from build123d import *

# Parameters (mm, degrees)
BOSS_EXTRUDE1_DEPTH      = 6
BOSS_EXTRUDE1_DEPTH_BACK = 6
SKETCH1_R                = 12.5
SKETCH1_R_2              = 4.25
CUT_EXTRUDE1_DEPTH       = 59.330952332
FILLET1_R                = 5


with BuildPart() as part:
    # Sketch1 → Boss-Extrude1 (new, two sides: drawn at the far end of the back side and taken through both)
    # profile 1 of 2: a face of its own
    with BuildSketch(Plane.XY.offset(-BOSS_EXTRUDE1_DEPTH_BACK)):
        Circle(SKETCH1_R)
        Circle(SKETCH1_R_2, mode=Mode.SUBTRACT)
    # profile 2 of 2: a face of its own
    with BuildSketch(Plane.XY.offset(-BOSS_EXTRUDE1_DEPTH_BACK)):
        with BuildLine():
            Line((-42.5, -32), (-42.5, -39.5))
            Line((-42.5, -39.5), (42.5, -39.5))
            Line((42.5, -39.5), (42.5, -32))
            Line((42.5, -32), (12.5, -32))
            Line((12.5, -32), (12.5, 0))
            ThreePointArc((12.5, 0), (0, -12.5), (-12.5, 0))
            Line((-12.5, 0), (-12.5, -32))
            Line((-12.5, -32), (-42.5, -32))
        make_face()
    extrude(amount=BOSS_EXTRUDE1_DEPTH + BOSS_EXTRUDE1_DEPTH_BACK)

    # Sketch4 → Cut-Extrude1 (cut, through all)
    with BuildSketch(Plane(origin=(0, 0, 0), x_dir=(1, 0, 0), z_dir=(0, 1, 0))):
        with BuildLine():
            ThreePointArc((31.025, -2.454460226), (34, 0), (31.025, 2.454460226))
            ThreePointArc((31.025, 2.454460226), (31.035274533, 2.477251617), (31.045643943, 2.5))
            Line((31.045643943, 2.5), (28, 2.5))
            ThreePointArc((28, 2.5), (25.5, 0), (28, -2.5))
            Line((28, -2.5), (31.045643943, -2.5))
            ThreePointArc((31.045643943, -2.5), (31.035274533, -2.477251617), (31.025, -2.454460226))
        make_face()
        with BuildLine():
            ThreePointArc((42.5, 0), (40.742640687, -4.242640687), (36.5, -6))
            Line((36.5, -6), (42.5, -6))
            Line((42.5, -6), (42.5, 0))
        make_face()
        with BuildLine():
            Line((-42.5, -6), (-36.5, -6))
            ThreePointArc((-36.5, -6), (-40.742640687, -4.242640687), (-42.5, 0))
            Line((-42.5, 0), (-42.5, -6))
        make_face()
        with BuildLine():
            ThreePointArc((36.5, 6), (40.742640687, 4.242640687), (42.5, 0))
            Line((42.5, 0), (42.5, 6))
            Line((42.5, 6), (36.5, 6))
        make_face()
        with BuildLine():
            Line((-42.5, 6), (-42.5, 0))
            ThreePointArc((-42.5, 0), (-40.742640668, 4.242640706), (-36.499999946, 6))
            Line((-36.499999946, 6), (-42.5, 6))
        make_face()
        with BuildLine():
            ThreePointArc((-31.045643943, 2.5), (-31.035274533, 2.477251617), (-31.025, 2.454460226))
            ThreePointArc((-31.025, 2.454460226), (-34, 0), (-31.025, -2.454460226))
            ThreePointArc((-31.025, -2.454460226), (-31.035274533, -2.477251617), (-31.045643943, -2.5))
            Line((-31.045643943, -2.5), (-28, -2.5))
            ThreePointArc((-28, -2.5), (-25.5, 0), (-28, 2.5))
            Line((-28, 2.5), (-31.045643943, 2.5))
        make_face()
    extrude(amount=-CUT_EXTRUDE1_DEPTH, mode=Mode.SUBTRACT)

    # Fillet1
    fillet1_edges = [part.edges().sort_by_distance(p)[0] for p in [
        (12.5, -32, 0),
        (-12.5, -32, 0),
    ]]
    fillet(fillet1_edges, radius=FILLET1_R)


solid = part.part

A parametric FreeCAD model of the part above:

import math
import FreeCAD as App
import Part
import Sketcher

V = App.Vector


def edges_at(feature, points):
    """Names of the edges that pass closest to the given points."""
    edges = feature.Shape.Edges
    near = lambda p: min(range(len(edges)), key=lambda i: edges[i].distToShape(Part.Vertex(*p))[0])
    return sorted({f"Edge{near(p) + 1}" for p in points})

doc = App.newDocument("Part")
body = doc.addObject("PartDesign::Body", "Body")

# Sketch on XY plane
sketch1 = doc.addObject("Sketcher::SketchObject", "Sketch")
body.addObject(sketch1)
sketch1.AttachmentSupport = (doc.XY_Plane, [""])
sketch1.MapMode = "FlatFace"
sketch1.addGeometry([
    Part.ArcOfCircle(Part.Circle(V(0, 0, 0), V(0, 0, 1), 12.5), math.radians(0), math.radians(180)),  # 0
    Part.LineSegment(V(-12.5, 0, 0), V(-12.5, -32, 0)),  # 1
    Part.LineSegment(V(-12.5, -32, 0), V(-42.5, -32, 0)),  # 2
    Part.LineSegment(V(-42.5, -32, 0), V(-42.5, -39.5, 0)),  # 3
    Part.LineSegment(V(-42.5, -39.5, 0), V(42.5, -39.5, 0)),  # 4
    Part.LineSegment(V(42.5, -39.5, 0), V(42.5, -32, 0)),  # 5
    Part.LineSegment(V(42.5, -32, 0), V(12.5, -32, 0)),  # 6
    Part.LineSegment(V(12.5, -32, 0), V(12.5, 0, 0)),  # 7
    Part.Circle(V(0, 0, 0), V(0, 0, 1), 4.2),  # 8
], False)
sketch1.addConstraint([
    Sketcher.Constraint("Tangent", 0, 2, 1, 1),
    Sketcher.Constraint("Coincident", 1, 2, 2, 1),
    Sketcher.Constraint("Coincident", 2, 2, 3, 1),
    Sketcher.Constraint("Coincident", 3, 2, 4, 1),
    Sketcher.Constraint("Coincident", 4, 2, 5, 1),
    Sketcher.Constraint("Coincident", 5, 2, 6, 1),
    Sketcher.Constraint("Coincident", 6, 2, 7, 1),
    Sketcher.Constraint("Tangent", 7, 2, 0, 1),
    Sketcher.Constraint("Vertical", 1),
    Sketcher.Constraint("Horizontal", 2),
    Sketcher.Constraint("Vertical", 3),
    Sketcher.Constraint("Horizontal", 4),
    Sketcher.Constraint("Vertical", 5),
    Sketcher.Constraint("Horizontal", 6),
    Sketcher.Constraint("Vertical", 7),
    Sketcher.Constraint("Coincident", 0, 3, -1, 1),
    Sketcher.Constraint("Coincident", 8, 3, -1, 1),
    Sketcher.Constraint("Symmetric", 2, 2, 5, 2, -2),
    Sketcher.Constraint("Diameter", 8, 8.5),
    Sketcher.Constraint("Radius", 0, 12.5),
    Sketcher.Constraint("DistanceX", 2, 2, 2, 1, 30.0),
    Sketcher.Constraint("DistanceY", 1, 2, 1, 1, 32.0),
    Sketcher.Constraint("DistanceY", 3, 2, 3, 1, 7.5),
])
pad1 = doc.addObject("PartDesign::Pad", "Pad")
body.addObject(pad1)
pad1.Profile = sketch1
pad1.Type = "TwoLengths"
pad1.Length = 6
pad1.Length2 = 6

# Sketch on XZ plane
sketch2 = doc.addObject("Sketcher::SketchObject", "Sketch001")
body.addObject(sketch2)
sketch2.AttachmentSupport = (doc.XZ_Plane, [""])
sketch2.MapMode = "FlatFace"
sketch2.addGeometry([
    Part.ArcOfCircle(Part.Circle(V(31.5, 0, 0), V(0, 0, 1), 2.5), math.radians(-101), math.radians(101)),  # 0
    Part.ArcOfCircle(Part.Circle(V(36.5, 0, 0), V(0, 0, 1), 6), math.radians(-155.85), math.radians(-155.38)),  # 1
    Part.LineSegment(V(31.05, -2.5, 0), V(28, -2.5, 0)),  # 2
    Part.ArcOfCircle(Part.Circle(V(28, 0, 0), V(0, 0, 1), 2.5), math.radians(90), math.radians(270)),  # 3
    Part.LineSegment(V(28, 2.5, 0), V(31.05, 2.5, 0)),  # 4
    Part.ArcOfCircle(Part.Circle(V(36.5, 0, 0), V(0, 0, 1), 6), math.radians(155.38), math.radians(155.85)),  # 5
    Part.ArcOfCircle(Part.Circle(V(36.5, 0, 0), V(0, 0, 1), 6), math.radians(0), math.radians(90)),  # 6
    Part.LineSegment(V(36.5, 6, 0), V(42.5, 6, 0)),  # 7
    Part.LineSegment(V(42.5, 6, 0), V(42.5, 0, 0)),  # 8
    Part.LineSegment(V(-42.5, 6, 0), V(-36.5, 6, 0)),  # 9
    Part.ArcOfCircle(Part.Circle(V(-36.5, 0, 0), V(0, 0, 1), 6), math.radians(90), math.radians(180)),  # 10
    Part.LineSegment(V(-42.5, 0, 0), V(-42.5, 6, 0)),  # 11
    Part.ArcOfCircle(Part.Circle(V(36.5, 0, 0), V(0, 0, 1), 6), math.radians(-90), math.radians(0)),  # 12
    Part.LineSegment(V(42.5, 0, 0), V(42.5, -6, 0)),  # 13
    Part.LineSegment(V(42.5, -6, 0), V(36.5, -6, 0)),  # 14
    Part.LineSegment(V(-42.5, -6, 0), V(-42.5, 0, 0)),  # 15
    Part.ArcOfCircle(Part.Circle(V(-36.5, 0, 0), V(0, 0, 1), 6), math.radians(180), math.radians(270)),  # 16
    Part.LineSegment(V(-36.5, -6, 0), V(-42.5, -6, 0)),  # 17
    Part.ArcOfCircle(Part.Circle(V(-36.5, 0, 0), V(0, 0, 1), 6), math.radians(-24.62), math.radians(-24.15)),  # 18
    Part.ArcOfCircle(Part.Circle(V(-31.5, 0, 0), V(0, 0, 1), 2.5), math.radians(79), math.radians(281)),  # 19
    Part.ArcOfCircle(Part.Circle(V(-36.5, 0, 0), V(0, 0, 1), 6), math.radians(24.15), math.radians(24.62)),  # 20
    Part.LineSegment(V(-31.05, 2.5, 0), V(-28, 2.5, 0)),  # 21
    Part.ArcOfCircle(Part.Circle(V(-28, 0, 0), V(0, 0, 1), 2.5), math.radians(-90), math.radians(90)),  # 22
    Part.LineSegment(V(-28, -2.5, 0), V(-31.05, -2.5, 0)),  # 23
], False)
sketch2.addConstraint([
    Sketcher.Constraint("Coincident", 0, 1, 1, 1),
    Sketcher.Constraint("Coincident", 1, 2, 2, 1),
    Sketcher.Constraint("Tangent", 2, 2, 3, 2),
    Sketcher.Constraint("Tangent", 3, 1, 4, 1),
    Sketcher.Constraint("Coincident", 4, 2, 5, 1),
    Sketcher.Constraint("Coincident", 5, 2, 0, 2),
    Sketcher.Constraint("Tangent", 6, 2, 7, 1),
    Sketcher.Constraint("Coincident", 7, 2, 8, 1),
    Sketcher.Constraint("Tangent", 8, 2, 6, 1),
    Sketcher.Constraint("Tangent", 9, 2, 10, 1),
    Sketcher.Constraint("Tangent", 10, 2, 11, 1),
    Sketcher.Constraint("Coincident", 11, 2, 9, 1),
    Sketcher.Constraint("Tangent", 12, 2, 13, 1),
    Sketcher.Constraint("Coincident", 13, 2, 14, 1),
    Sketcher.Constraint("Tangent", 14, 2, 12, 1),
    Sketcher.Constraint("Tangent", 15, 2, 16, 1),
    Sketcher.Constraint("Tangent", 16, 2, 17, 1),
    Sketcher.Constraint("Coincident", 17, 2, 15, 1),
    Sketcher.Constraint("Coincident", 18, 2, 19, 2),
    Sketcher.Constraint("Coincident", 19, 1, 20, 1),
    Sketcher.Constraint("Coincident", 20, 2, 21, 1),
    Sketcher.Constraint("Tangent", 21, 2, 22, 2),
    Sketcher.Constraint("Tangent", 22, 1, 23, 1),
    Sketcher.Constraint("Coincident", 23, 2, 18, 1),
    Sketcher.Constraint("Horizontal", 2),
    Sketcher.Constraint("Horizontal", 4),
    Sketcher.Constraint("Horizontal", 7),
    Sketcher.Constraint("Vertical", 8),
    Sketcher.Constraint("Horizontal", 9),
    Sketcher.Constraint("Vertical", 11),
    Sketcher.Constraint("Vertical", 13),
    Sketcher.Constraint("Horizontal", 14),
    Sketcher.Constraint("Vertical", 15),
    Sketcher.Constraint("Horizontal", 17),
    Sketcher.Constraint("Horizontal", 21),
    Sketcher.Constraint("Horizontal", 23),
    Sketcher.Constraint("Coincident", 12, 3, 6, 3),
    Sketcher.Constraint("Coincident", 16, 3, 10, 3),
    Sketcher.Constraint("Equal", 0, 3),
    Sketcher.Constraint("Equal", 1, 5),
    Sketcher.Constraint("Equal", 6, 10),
    Sketcher.Constraint("Equal", 10, 12),
    Sketcher.Constraint("Equal", 12, 16),
    Sketcher.Constraint("Equal", 5, 18),
    Sketcher.Constraint("Equal", 3, 19),
    Sketcher.Constraint("Equal", 18, 20),
    Sketcher.Constraint("Equal", 19, 22),
    Sketcher.Constraint("Symmetric", 6, 3, 10, 3, -1, 1),
    Sketcher.Constraint("Symmetric", 5, 3, 18, 3, -1, 1),
    Sketcher.Constraint("Symmetric", 0, 3, 19, 3, -1, 1),
    Sketcher.Constraint("Symmetric", 1, 3, 20, 3, -1, 1),
    Sketcher.Constraint("Symmetric", 3, 3, 22, 3, -1, 1),
    Sketcher.Constraint("Symmetric", 1, 3, 18, 3, -2),
    Sketcher.Constraint("PointOnObject", 0, 3, -1),
    Sketcher.Constraint("PointOnObject", 3, 3, -1),
    Sketcher.Constraint("PointOnObject", 6, 3, -1),
    Sketcher.Constraint("Radius", 6, 6.0),
    Sketcher.Constraint("Radius", 0, 2.5),
    Sketcher.Constraint("DistanceX", -1, 1, 3, 3, 28.0),
    Sketcher.Constraint("DistanceX", 0, 3, 6, 3, 5.0),
    Sketcher.Constraint("DistanceX", 10, 3, 0, 3, 68.0),
    Sketcher.Constraint("DistanceX", -1, 1, 0, 1, 31.025),
    Sketcher.Constraint("Radius", 1, 5.999954),
    Sketcher.Constraint("DistanceX", 2, 2, 2, 1, 3.045644),
])
pocket1 = doc.addObject("PartDesign::Pocket", "Pocket")
body.addObject(pocket1)
pocket1.Profile = sketch2
pocket1.Type = "ThroughAll"
pocket1.Reversed = True
doc.recompute()

fillet = doc.addObject("PartDesign::Fillet", "Fillet")
body.addObject(fillet)
fillet.Base = (pocket1, edges_at(pocket1, [(12.5, -32, 0), (-12.5, -32, 0)]))
fillet.Radius = 5

doc.recompute()
